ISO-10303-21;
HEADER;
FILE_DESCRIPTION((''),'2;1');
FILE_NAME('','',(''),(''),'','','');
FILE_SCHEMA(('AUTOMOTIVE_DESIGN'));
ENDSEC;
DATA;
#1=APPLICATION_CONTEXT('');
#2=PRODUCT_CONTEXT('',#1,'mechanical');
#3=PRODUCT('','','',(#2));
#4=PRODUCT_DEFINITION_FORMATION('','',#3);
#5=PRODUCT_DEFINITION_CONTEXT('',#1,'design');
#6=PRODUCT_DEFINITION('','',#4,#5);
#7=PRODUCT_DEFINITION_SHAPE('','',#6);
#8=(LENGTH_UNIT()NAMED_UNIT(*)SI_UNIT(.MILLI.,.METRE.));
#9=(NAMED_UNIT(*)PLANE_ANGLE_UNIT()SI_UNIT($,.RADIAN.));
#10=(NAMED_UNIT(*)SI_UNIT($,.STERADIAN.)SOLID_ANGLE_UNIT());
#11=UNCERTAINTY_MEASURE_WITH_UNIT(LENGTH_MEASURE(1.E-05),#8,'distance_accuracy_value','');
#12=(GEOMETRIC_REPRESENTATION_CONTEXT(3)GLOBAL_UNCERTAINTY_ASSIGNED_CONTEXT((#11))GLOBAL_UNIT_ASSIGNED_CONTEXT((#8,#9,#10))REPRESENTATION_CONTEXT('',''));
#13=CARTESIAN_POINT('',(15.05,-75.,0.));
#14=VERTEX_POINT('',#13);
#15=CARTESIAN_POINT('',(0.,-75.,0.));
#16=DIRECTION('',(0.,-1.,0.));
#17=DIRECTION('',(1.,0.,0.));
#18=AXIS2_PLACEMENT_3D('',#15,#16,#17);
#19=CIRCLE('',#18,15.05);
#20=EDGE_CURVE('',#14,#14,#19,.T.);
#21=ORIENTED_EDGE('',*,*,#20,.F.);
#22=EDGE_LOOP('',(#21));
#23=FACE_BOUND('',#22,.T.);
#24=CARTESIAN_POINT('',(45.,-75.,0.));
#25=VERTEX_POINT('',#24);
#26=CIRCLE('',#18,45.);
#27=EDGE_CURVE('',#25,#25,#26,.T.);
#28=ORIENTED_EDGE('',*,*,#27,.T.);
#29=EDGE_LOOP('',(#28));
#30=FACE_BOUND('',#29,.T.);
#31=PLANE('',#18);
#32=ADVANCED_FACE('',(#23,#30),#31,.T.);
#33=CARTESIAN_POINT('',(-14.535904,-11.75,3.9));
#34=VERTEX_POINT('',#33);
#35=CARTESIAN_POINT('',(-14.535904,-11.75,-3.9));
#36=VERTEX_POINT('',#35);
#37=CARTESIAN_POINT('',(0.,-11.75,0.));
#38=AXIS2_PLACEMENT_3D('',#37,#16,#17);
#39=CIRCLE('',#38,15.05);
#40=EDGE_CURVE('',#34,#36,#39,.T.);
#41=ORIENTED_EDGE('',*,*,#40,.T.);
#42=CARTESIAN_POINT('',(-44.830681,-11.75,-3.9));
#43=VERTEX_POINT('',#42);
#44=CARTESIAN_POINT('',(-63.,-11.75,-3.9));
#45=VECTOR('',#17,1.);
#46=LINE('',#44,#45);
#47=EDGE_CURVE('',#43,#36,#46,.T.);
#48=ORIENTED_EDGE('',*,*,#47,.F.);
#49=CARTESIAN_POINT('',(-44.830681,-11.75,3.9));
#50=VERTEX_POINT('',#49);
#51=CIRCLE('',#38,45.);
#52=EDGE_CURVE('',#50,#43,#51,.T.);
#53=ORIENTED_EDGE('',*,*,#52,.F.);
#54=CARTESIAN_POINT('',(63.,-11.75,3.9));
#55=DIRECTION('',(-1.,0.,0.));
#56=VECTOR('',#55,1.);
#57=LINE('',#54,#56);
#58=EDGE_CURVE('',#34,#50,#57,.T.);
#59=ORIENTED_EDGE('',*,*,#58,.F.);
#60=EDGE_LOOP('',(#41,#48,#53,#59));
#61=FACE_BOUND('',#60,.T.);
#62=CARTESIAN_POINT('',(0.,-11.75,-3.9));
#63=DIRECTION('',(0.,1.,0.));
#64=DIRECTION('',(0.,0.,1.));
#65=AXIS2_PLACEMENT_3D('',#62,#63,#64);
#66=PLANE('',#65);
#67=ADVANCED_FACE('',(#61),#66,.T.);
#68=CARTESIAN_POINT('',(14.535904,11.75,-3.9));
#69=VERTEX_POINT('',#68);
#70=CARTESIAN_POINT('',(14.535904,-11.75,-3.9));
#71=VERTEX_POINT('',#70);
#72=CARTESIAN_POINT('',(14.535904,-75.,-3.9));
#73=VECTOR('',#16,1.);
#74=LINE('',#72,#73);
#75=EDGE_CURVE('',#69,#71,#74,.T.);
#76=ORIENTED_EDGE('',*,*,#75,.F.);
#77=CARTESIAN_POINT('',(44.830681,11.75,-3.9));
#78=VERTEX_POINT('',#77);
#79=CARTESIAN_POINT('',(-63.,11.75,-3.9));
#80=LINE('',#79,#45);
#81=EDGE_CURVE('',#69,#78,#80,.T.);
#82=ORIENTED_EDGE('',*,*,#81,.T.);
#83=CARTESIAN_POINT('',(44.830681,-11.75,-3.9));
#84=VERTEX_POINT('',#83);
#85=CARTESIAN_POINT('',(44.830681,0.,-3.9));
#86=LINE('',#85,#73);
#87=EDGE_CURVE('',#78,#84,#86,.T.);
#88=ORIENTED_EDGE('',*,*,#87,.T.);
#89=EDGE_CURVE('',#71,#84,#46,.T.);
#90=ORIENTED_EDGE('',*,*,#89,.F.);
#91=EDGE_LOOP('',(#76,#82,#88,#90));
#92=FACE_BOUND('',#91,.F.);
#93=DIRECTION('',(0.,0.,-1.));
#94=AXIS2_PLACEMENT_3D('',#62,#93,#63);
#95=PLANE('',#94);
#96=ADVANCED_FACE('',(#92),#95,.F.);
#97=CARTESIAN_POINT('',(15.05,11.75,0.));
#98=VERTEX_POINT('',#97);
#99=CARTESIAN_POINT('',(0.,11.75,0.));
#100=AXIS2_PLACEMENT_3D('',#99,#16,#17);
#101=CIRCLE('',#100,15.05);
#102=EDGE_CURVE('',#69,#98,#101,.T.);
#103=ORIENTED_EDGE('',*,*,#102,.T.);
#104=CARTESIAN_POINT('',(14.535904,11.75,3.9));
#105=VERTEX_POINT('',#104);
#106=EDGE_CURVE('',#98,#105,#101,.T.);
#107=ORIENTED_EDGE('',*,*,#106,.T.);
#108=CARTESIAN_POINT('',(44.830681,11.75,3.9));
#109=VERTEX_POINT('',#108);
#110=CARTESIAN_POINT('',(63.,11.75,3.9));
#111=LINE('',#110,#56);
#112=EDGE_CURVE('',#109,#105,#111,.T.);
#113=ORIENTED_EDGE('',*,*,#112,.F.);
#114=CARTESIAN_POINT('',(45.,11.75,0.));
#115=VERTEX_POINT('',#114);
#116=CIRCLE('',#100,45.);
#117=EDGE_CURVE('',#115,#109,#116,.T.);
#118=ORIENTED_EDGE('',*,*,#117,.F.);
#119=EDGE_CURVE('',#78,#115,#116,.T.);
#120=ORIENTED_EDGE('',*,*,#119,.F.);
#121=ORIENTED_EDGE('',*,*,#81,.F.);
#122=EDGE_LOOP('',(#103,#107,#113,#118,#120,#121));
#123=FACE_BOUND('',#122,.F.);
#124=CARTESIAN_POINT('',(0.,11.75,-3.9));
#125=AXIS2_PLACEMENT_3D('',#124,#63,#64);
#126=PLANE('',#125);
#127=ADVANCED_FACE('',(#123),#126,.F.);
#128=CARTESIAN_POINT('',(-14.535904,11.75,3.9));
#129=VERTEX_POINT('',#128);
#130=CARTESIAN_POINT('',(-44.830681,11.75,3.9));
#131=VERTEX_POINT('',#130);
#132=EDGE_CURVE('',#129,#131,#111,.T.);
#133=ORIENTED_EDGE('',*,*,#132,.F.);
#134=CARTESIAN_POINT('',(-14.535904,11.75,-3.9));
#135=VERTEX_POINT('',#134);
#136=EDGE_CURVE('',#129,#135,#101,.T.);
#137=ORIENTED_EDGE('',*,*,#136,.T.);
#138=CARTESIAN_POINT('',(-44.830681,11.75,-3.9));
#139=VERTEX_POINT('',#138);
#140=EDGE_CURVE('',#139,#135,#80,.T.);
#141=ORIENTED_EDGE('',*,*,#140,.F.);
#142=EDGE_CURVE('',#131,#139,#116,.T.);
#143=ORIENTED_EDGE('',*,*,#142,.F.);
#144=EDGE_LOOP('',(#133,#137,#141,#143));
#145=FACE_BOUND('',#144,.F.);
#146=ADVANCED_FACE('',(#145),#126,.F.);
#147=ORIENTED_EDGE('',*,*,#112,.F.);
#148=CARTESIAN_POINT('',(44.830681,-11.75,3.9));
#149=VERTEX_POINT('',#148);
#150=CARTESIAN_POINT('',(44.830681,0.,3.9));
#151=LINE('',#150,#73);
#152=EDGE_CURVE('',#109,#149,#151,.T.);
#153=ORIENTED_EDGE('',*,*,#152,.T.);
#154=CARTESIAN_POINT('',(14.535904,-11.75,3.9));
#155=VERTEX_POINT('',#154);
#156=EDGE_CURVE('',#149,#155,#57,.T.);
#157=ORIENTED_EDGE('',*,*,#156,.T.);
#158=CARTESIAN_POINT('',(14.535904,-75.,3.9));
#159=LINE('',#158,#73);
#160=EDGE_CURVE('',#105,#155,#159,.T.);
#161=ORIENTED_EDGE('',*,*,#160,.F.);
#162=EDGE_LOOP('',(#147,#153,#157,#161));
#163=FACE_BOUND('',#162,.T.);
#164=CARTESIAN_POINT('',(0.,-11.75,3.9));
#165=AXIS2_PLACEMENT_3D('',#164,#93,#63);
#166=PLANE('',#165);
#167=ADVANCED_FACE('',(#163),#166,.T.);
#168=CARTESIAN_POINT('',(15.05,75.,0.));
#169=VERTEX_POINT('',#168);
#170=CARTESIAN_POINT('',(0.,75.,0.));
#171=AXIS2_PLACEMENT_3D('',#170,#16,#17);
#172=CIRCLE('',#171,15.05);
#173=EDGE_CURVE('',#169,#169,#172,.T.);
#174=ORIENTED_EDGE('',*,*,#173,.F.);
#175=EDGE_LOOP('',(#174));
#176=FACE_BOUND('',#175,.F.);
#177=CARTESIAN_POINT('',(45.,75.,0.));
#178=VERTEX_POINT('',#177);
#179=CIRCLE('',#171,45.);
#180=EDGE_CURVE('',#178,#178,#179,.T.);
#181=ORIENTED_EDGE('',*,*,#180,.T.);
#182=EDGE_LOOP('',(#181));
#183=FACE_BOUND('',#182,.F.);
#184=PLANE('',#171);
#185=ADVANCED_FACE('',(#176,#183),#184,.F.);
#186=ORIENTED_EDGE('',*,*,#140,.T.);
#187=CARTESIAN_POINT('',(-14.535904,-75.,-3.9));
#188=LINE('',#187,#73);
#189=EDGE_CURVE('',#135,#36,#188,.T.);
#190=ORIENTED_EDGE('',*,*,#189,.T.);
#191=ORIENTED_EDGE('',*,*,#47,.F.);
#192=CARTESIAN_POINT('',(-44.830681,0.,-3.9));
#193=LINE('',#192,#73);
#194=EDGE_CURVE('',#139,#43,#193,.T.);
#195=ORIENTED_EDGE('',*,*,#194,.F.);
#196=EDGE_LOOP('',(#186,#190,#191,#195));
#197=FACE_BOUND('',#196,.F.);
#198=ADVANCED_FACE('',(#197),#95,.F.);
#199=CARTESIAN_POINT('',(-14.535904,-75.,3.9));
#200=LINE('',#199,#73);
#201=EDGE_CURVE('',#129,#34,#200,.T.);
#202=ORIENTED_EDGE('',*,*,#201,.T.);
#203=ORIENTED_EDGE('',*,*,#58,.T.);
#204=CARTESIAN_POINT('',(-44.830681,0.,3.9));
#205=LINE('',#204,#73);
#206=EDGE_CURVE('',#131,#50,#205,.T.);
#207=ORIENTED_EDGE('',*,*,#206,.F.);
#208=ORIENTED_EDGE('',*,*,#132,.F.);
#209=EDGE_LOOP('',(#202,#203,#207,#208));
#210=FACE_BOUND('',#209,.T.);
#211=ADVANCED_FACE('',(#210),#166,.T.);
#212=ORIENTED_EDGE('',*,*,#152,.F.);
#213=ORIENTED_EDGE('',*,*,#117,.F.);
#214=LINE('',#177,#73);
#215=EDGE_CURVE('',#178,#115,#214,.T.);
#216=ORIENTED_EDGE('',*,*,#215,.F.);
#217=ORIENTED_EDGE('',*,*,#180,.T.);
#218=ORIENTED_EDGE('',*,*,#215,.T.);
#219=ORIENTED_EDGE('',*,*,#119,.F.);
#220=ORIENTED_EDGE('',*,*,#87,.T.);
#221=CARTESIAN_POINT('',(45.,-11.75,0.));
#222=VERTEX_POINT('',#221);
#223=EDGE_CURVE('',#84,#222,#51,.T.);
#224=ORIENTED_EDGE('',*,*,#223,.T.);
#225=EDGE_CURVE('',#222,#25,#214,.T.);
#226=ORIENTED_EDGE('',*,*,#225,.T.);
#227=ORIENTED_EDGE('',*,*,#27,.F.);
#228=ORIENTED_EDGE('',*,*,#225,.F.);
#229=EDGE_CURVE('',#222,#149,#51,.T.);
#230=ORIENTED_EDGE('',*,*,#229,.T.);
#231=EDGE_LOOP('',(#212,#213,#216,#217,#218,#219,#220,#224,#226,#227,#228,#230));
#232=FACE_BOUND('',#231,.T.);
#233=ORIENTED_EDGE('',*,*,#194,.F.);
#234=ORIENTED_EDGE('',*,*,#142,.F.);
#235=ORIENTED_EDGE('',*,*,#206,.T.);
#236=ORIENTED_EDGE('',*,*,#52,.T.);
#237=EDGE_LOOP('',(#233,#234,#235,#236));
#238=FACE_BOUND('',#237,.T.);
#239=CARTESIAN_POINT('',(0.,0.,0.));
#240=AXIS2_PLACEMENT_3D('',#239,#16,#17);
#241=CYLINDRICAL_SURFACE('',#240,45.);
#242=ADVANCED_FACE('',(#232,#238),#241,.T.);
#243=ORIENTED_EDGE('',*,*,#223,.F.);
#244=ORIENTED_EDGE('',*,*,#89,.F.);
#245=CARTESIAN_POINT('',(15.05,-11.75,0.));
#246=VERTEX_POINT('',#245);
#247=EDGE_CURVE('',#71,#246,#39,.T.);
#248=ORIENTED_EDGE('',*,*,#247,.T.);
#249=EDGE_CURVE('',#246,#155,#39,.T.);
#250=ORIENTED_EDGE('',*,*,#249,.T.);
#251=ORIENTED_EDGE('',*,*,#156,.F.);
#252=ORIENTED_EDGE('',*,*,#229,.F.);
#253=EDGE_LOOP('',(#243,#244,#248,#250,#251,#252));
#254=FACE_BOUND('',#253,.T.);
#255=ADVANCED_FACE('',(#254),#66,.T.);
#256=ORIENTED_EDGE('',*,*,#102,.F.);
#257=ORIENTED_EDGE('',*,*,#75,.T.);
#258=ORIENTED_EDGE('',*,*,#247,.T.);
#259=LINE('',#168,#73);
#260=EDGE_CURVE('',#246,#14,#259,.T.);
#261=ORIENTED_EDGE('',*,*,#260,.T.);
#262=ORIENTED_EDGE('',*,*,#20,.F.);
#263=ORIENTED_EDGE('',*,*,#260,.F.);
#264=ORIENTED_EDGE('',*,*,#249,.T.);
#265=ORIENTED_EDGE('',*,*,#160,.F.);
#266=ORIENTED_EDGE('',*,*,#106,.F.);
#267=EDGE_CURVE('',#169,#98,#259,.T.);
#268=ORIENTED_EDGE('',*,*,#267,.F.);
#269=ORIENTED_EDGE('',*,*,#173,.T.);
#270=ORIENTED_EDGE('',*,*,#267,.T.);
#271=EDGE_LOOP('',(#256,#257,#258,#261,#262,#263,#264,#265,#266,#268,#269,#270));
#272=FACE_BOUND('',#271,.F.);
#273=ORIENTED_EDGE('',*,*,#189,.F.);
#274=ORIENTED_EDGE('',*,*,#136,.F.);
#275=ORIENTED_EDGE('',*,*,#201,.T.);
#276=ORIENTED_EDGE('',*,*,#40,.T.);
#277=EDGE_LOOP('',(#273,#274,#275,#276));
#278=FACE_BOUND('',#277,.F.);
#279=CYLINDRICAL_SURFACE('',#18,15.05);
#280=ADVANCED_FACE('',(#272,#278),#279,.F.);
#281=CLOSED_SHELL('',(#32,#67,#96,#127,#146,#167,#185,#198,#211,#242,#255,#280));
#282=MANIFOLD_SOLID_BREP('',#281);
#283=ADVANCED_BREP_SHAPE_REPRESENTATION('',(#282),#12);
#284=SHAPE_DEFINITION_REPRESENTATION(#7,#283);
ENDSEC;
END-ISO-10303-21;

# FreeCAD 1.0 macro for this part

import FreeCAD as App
import Part
import Sketcher
from FreeCAD import Vector


def add_polygon(sketch, points):
    """Adds a closed chain of lines whose ends are joined by coincident constraints."""
    first, n = sketch.GeometryCount, len(points)
    for a, b in zip(points, points[1:] + points[:1]):
        sketch.addGeometry(Part.LineSegment(App.Vector(*a, 0), App.Vector(*b, 0)), False)
    for i in range(n):
        sketch.addConstraint(Sketcher.Constraint("Coincident", first + i, 2, first + (i + 1) % n, 1))

doc = App.newDocument("Part")
params = doc.addObject("Spreadsheet::Sheet", "Params")
for row, (alias, value) in enumerate([
    ("sketch1_diameter", "90 mm"),
    ("pad1_length", "150 mm"),
    ("sketch2_diameter", "30.1 mm"),
    ("pocket1_length", "300 mm"),
    ("sketch3_width", "23.5 mm"),
    ("sketch3_height", "7.8 mm"),
    ("pocket2_length", "126 mm"),
], start=1):
    params.set(f"A{row}", alias)
    params.set(f"B{row}", "=" + value)
    params.setAlias(f"B{row}", alias)

body = doc.addObject("PartDesign::Body", "Body")

# Sketch on XZ plane
sketch1 = body.newObject("Sketcher::SketchObject", "Sketch")
sketch1.AttachmentSupport = (doc.getObject("XZ_Plane"), [""])
sketch1.MapMode = "FlatFace"
sketch1.addGeometry(Part.Circle(Vector(0, 0, 0), Vector(0, 0, 1), 45), False)
sketch1.addConstraint(Sketcher.Constraint("Coincident", 0, 3, -1, 1))
sketch1.addConstraint(Sketcher.Constraint("Diameter", 0, 90.0))
sketch1.setExpression("Constraints[1]", "Params.sketch1_diameter")
pad1 = body.newObject("PartDesign::Pad", "Pad")
pad1.Profile = sketch1
pad1.setExpression("Length", "Params.pad1_length")
pad1.Midplane = True

# Sketch on XZ plane
sketch2 = body.newObject("Sketcher::SketchObject", "Sketch001")
sketch2.AttachmentSupport = (doc.getObject("XZ_Plane"), [""])
sketch2.MapMode = "FlatFace"
sketch2.AttachmentOffset = App.Placement(Vector(0, 0, 75), App.Rotation())
sketch2.addGeometry(Part.Circle(Vector(0, 0, 0), Vector(0, 0, 1), 15), False)
sketch2.addConstraint(Sketcher.Constraint("Coincident", 0, 3, -1, 1))
sketch2.addConstraint(Sketcher.Constraint("Diameter", 0, 30.1))
sketch2.setExpression("Constraints[1]", "Params.sketch2_diameter")
pocket1 = body.newObject("PartDesign::Pocket", "Pocket")
pocket1.Profile = sketch2
pocket1.setExpression("Length", "Params.pocket1_length")
pocket1.Midplane = True

# Sketch on YZ plane
sketch3 = body.newObject("Sketcher::SketchObject", "Sketch002")
sketch3.AttachmentSupport = (doc.getObject("YZ_Plane"), [""])
sketch3.MapMode = "FlatFace"
add_polygon(sketch3, [(-12, 4), (-12, -4), (12, -4), (12, 4)])  # lines 0-3
sketch3.addConstraint(Sketcher.Constraint("Vertical", 0))
sketch3.addConstraint(Sketcher.Constraint("Horizontal", 1))
sketch3.addConstraint(Sketcher.Constraint("Vertical", 2))
sketch3.addConstraint(Sketcher.Constraint("Horizontal", 3))
sketch3.addConstraint(Sketcher.Constraint("Symmetric", 0, 2, 2, 2, -1, 1))
sketch3.addConstraint(Sketcher.Constraint("DistanceX", 1, 1, 1, 2, 23.5))
sketch3.addConstraint(Sketcher.Constraint("DistanceY", 0, 2, 0, 1, 7.8))
sketch3.setExpression("Constraints[9]", "Params.sketch3_width")
sketch3.setExpression("Constraints[10]", "Params.sketch3_height")
pocket2 = body.newObject("PartDesign::Pocket", "Pocket001")
pocket2.Profile = sketch3
pocket2.setExpression("Length", "Params.pocket2_length")
pocket2.Midplane = True

doc.recompute()
